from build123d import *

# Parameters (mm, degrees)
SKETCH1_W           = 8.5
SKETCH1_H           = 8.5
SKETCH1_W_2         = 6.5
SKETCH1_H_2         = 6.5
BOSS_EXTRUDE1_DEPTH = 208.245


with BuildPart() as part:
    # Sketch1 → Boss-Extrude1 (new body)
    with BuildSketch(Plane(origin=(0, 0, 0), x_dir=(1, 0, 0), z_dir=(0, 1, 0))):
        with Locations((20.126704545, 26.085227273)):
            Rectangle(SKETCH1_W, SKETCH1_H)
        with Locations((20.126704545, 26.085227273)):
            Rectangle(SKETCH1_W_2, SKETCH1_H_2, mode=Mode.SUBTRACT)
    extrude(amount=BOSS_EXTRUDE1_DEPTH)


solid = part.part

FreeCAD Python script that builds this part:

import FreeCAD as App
import Part
import Sketcher
from FreeCAD import Vector


def add_polygon(sketch, points):
    """Adds a closed chain of lines whose ends are joined by coincident constraints."""
    first, n = sketch.GeometryCount, len(points)
    for a, b in zip(points, points[1:] + points[:1]):
        sketch.addGeometry(Part.LineSegment(App.Vector(*a, 0), App.Vector(*b, 0)), False)
    for i in range(n):
        sketch.addConstraint(Sketcher.Constraint("Coincident", first + i, 2, first + (i + 1) % n, 1))

doc = App.newDocument("Part")
body = doc.addObject("PartDesign::Body", "Body")

sketch1 = body.newObject("Sketcher::SketchObject", "Sketch")
sketch1.AttachmentSupport = (doc.getObject("XZ_Plane"), [""])
sketch1.MapMode = "FlatFace"
add_polygon(sketch1, [(16, -30), (16, -22), (24, -22), (24, -30)])
add_polygon(sketch1, [(23, -23), (17, -23), (17, -29), (23, -29)])
sketch1.addConstraint(Sketcher.Constraint("Vertical", 0))
sketch1.addConstraint(Sketcher.Constraint("Horizontal", 1))
sketch1.addConstraint(Sketcher.Constraint("Vertical", 2))
sketch1.addConstraint(Sketcher.Constraint("Horizontal", 3))
sketch1.addConstraint(Sketcher.Constraint("Horizontal", 4))
sketch1.addConstraint(Sketcher.Constraint("Vertical", 5))
sketch1.addConstraint(Sketcher.Constraint("Horizontal", 6))
sketch1.addConstraint(Sketcher.Constraint("Vertical", 7))
sketch1.addConstraint(Sketcher.Constraint("Equal", 3, 0))
sketch1.addConstraint(Sketcher.Constraint("Equal", 6, 5))
sketch1.addConstraint(Sketcher.Constraint("DistanceX", 1, 1, 1, 2, 8.5))
sketch1.addConstraint(Sketcher.Constraint("DistanceX", 4, 2, 4, 1, 6.5))
sketch1.addConstraint(Sketcher.Constraint("DistanceX", 0, 2, 4, 2, 1.0))
sketch1.addConstraint(Sketcher.Constraint("DistanceY", 4, 2, 0, 2, 1.0))
sketch1.addConstraint(Sketcher.Constraint("DistanceX", -1, 1, 0, 2, 15.876705))
sketch1.addConstraint(Sketcher.Constraint("DistanceY", 0, 2, -1, 1, 21.835227))
pad1 = body.newObject("PartDesign::Pad", "Pad")
pad1.Profile = sketch1
pad1.Length = 208.245
pad1.Reversed = True

doc.recompute()
